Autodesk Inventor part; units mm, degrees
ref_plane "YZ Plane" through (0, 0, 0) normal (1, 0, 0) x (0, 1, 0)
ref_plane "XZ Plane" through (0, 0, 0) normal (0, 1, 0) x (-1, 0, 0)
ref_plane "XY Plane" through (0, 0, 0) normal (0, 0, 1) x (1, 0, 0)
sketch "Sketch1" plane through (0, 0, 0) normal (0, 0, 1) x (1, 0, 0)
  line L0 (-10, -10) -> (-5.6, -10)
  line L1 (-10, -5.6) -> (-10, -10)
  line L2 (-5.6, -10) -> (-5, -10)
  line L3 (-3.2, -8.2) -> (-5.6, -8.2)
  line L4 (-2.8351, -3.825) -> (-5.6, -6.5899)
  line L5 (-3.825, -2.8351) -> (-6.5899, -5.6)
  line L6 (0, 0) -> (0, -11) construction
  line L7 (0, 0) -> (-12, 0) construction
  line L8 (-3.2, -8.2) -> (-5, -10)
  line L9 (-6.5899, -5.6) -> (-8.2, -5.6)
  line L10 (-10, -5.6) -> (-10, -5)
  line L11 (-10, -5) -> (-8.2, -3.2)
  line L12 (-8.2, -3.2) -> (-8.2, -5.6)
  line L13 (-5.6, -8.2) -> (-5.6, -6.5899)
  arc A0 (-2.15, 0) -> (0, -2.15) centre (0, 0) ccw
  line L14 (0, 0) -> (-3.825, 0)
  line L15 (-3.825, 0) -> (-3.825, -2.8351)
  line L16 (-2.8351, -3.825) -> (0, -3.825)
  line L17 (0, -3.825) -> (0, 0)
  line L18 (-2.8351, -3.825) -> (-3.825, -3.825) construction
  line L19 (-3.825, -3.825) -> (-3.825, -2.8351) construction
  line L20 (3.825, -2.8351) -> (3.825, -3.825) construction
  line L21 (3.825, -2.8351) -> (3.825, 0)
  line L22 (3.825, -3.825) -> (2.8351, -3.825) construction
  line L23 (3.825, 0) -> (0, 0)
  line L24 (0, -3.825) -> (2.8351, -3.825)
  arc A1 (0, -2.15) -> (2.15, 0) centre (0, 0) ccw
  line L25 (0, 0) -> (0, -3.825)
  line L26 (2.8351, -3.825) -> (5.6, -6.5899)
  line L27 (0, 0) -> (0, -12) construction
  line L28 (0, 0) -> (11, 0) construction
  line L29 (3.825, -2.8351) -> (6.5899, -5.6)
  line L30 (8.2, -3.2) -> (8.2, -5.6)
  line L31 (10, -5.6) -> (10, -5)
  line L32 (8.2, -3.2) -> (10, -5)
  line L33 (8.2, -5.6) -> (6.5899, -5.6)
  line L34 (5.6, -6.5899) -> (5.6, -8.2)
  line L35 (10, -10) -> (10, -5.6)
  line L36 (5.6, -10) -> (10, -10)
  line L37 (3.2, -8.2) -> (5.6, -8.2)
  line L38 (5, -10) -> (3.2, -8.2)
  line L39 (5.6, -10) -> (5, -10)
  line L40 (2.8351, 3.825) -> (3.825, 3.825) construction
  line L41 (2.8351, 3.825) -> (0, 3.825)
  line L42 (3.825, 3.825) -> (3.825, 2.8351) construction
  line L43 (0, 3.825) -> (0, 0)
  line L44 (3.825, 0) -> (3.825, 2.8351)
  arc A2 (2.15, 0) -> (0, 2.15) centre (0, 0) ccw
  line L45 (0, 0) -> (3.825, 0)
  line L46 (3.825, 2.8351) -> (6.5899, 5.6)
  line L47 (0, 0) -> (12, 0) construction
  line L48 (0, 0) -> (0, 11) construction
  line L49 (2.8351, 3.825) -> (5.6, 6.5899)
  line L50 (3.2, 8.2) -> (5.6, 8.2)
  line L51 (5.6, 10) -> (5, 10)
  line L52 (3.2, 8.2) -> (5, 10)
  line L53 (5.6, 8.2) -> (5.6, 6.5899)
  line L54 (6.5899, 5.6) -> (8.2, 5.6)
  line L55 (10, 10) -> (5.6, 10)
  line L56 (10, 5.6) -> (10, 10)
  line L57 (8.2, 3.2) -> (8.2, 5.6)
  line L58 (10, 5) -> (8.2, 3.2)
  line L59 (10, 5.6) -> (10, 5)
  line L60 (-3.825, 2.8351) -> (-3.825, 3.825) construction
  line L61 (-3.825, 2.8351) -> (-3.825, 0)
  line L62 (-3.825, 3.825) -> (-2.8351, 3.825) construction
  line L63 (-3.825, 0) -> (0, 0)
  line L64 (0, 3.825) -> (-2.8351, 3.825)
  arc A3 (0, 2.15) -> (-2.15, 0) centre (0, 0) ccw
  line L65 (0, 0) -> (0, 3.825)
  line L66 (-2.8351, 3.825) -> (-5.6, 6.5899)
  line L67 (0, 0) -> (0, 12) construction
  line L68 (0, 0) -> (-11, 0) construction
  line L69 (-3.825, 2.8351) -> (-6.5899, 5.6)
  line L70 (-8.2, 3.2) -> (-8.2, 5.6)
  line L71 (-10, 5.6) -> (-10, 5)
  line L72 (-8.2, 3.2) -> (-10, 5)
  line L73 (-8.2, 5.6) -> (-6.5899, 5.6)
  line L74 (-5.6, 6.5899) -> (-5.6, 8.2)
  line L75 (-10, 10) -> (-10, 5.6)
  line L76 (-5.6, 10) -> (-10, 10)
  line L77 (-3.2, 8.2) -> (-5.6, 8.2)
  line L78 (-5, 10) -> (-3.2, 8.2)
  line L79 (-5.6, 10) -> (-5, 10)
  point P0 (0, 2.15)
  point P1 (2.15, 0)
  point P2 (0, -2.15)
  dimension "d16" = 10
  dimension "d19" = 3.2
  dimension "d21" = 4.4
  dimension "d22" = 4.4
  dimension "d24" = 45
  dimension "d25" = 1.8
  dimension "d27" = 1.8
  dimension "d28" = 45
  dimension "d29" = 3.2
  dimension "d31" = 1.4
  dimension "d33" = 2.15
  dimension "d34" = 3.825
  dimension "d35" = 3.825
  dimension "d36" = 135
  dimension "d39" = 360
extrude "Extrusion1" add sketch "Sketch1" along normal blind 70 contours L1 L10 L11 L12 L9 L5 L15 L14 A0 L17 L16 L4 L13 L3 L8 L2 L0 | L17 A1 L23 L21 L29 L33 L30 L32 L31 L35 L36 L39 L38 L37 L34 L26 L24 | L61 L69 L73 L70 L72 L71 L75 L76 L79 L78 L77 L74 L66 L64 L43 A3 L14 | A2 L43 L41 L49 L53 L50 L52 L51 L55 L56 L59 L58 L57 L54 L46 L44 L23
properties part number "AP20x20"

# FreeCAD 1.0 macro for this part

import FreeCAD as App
import Part
import Sketcher
Q = App.Units.Quantity


def add_polygon(sketch, points):
    """Adds a closed chain of lines whose ends are joined by coincident constraints."""
    first, n = sketch.GeometryCount, len(points)
    for a, b in zip(points, points[1:] + points[:1]):
        sketch.addGeometry(Part.LineSegment(App.Vector(*a, 0), App.Vector(*b, 0)), False)
    for i in range(n):
        sketch.addConstraint(Sketcher.Constraint("Coincident", first + i, 2, first + (i + 1) % n, 1))

doc = App.newDocument("Part")
params = doc.addObject("Spreadsheet::Sheet", "Params")
for row, (alias, value) in enumerate([
    ("sketch1_diameter", "4.3 mm"),
    ("sketch1_width", "1.61 mm"),
    ("pad1_length", "70 mm"),
], start=1):
    params.set(f"A{row}", alias)
    params.set(f"B{row}", "=" + value)
    params.setAlias(f"B{row}", alias)

body = doc.addObject("PartDesign::Body", "Body")

sketch1 = body.newObject("Sketcher::SketchObject", "Sketch")
sketch1.AttachmentSupport = (doc.getObject("XY_Plane"), [""])
sketch1.MapMode = "FlatFace"
add_polygon(sketch1, [(-10, -10), (-5, -10), (-3.2, -8.2), (-5.6, -8.2), (-5.6, -6.6), (-2.8, -3.8), (2.8, -3.8), (5.6, -6.6), (5.6, -8.2), (3.2, -8.2), (5, -10), (10, -10), (10, -5), (8.2, -3.2), (8.2, -5.6), (6.6, -5.6), (3.8, -2.8), (3.8, 2.8), (6.6, 5.6), (8.2, 5.6), (8.2, 3.2), (10, 5), (10, 10), (5, 10), (3.2, 8.2), (5.6, 8.2), (5.6, 6.6), (2.8, 3.8), (-2.8, 3.8), (-5.6, 6.6), (-5.6, 8.2), (-3.2, 8.2), (-5, 10), (-10, 10), (-10, 5), (-8.2, 3.2), (-8.2, 5.6), (-6.6, 5.6), (-3.8, 2.8), (-3.8, -2.8), (-6.6, -5.6), (-8.2, -5.6), (-8.2, -3.2), (-10, -5)])
sketch1.addGeometry(Part.Circle(App.Vector(0, 0, 0), App.Vector(0, 0, 1), 2.1), False)
sketch1.addConstraint(Sketcher.Constraint("Horizontal", 0))
sketch1.addConstraint(Sketcher.Constraint("Horizontal", 2))
sketch1.addConstraint(Sketcher.Constraint("Vertical", 3))
sketch1.addConstraint(Sketcher.Constraint("Horizontal", 5))
sketch1.addConstraint(Sketcher.Constraint("Vertical", 7))
sketch1.addConstraint(Sketcher.Constraint("Horizontal", 8))
sketch1.addConstraint(Sketcher.Constraint("Horizontal", 10))
sketch1.addConstraint(Sketcher.Constraint("Vertical", 11))
sketch1.addConstraint(Sketcher.Constraint("Vertical", 13))
sketch1.addConstraint(Sketcher.Constraint("Horizontal", 14))
sketch1.addConstraint(Sketcher.Constraint("Vertical", 16))
sketch1.addConstraint(Sketcher.Constraint("Horizontal", 18))
sketch1.addConstraint(Sketcher.Constraint("Vertical", 19))
sketch1.addConstraint(Sketcher.Constraint("Vertical", 21))
sketch1.addConstraint(Sketcher.Constraint("Horizontal", 22))
sketch1.addConstraint(Sketcher.Constraint("Horizontal", 24))
sketch1.addConstraint(Sketcher.Constraint("Vertical", 25))
sketch1.addConstraint(Sketcher.Constraint("Horizontal", 27))
sketch1.addConstraint(Sketcher.Constraint("Vertical", 29))
sketch1.addConstraint(Sketcher.Constraint("Horizontal", 30))
sketch1.addConstraint(Sketcher.Constraint("Horizontal", 32))
sketch1.addConstraint(Sketcher.Constraint("Vertical", 33))
sketch1.addConstraint(Sketcher.Constraint("Vertical", 35))
sketch1.addConstraint(Sketcher.Constraint("Horizontal", 36))
sketch1.addConstraint(Sketcher.Constraint("Vertical", 38))
sketch1.addConstraint(Sketcher.Constraint("Horizontal", 40))
sketch1.addConstraint(Sketcher.Constraint("Vertical", 41))
sketch1.addConstraint(Sketcher.Constraint("Vertical", 43))
sketch1.addConstraint(Sketcher.Constraint("Coincident", 44, 3, -1, 1))
sketch1.addConstraint(Sketcher.Constraint("Symmetric", 0, 2, 22, 2, -1, 1))
sketch1.addConstraint(Sketcher.Constraint("Symmetric", 1, 2, 23, 2, -1, 1))
sketch1.addConstraint(Sketcher.Constraint("Symmetric", 3, 2, 25, 2, -1, 1))
sketch1.addConstraint(Sketcher.Constraint("Symmetric", 4, 2, 26, 2, -1, 1))
sketch1.addConstraint(Sketcher.Constraint("Symmetric", 6, 2, 28, 2, -1, 1))
sketch1.addConstraint(Sketcher.Constraint("Symmetric", 8, 2, 30, 2, -1, 1))
sketch1.addConstraint(Sketcher.Constraint("Symmetric", 9, 2, 31, 2, -1, 1))
sketch1.addConstraint(Sketcher.Constraint("Symmetric", 11, 2, 33, 2, -1, 1))
sketch1.addConstraint(Sketcher.Constraint("Symmetric", 12, 2, 34, 2, -1, 1))
sketch1.addConstraint(Sketcher.Constraint("Symmetric", 14, 2, 36, 2, -1, 1))
sketch1.addConstraint(Sketcher.Constraint("Symmetric", 15, 2, 37, 2, -1, 1))
sketch1.addConstraint(Sketcher.Constraint("Symmetric", 17, 2, 39, 2, -1, 1))
sketch1.addConstraint(Sketcher.Constraint("Symmetric", 19, 2, 41, 2, -1, 1))
sketch1.addConstraint(Sketcher.Constraint("Symmetric", 20, 2, 42, 2, -1, 1))
sketch1.addConstraint(Sketcher.Constraint("Symmetric", 3, 2, 6, 2, -2))
sketch1.addConstraint(Sketcher.Constraint("Symmetric", 1, 2, 8, 2, -2))
sketch1.addConstraint(Sketcher.Constraint("Symmetric", 0, 2, 9, 2, -2))
sketch1.addConstraint(Sketcher.Constraint("Symmetric", 20, 2, 33, 2, -2))
sketch1.addConstraint(Sketcher.Constraint("Symmetric", 19, 2, 34, 2, -2))
sketch1.addConstraint(Sketcher.Constraint("Symmetric", 17, 2, 36, 2, -2))
sketch1.addConstraint(Sketcher.Constraint("Parallel", 1, 4))
sketch1.addConstraint(Sketcher.Constraint("Perpendicular", 4, 6))
sketch1.addConstraint(Sketcher.Constraint("Parallel", 6, 9))
sketch1.addConstraint(Sketcher.Constraint("Parallel", 9, 12))
sketch1.addConstraint(Sketcher.Constraint("Parallel", 12, 15))
sketch1.addConstraint(Sketcher.Constraint("Perpendicular", 15, 17))
sketch1.addConstraint(Sketcher.Constraint("Perpendicular", 26, 28))
sketch1.addConstraint(Sketcher.Constraint("Perpendicular", 37, 39))
sketch1.addConstraint(Sketcher.Constraint("Equal", 40, 3))
sketch1.addConstraint(Sketcher.Constraint("Equal", 32, 11))
sketch1.addConstraint(Sketcher.Constraint("Equal", 30, 13))
sketch1.addConstraint(Sketcher.Constraint("Equal", 27, 16))
sketch1.addConstraint(Sketcher.Constraint("Equal", 9, 12))
sketch1.addConstraint(Sketcher.Constraint("Equal", 6, 15))
sketch1.addConstraint(Sketcher.Constraint("Diameter", 44, Q("4.3 mm")))
sketch1.addConstraint(Sketcher.Constraint("DistanceY", 0, 2, -1, 1, Q("10 mm")))
sketch1.addConstraint(Sketcher.Constraint("DistanceX", 1, 2, -1, 1, Q("3.2 mm")))
sketch1.addConstraint(Sketcher.Constraint("DistanceX", 0, 2, 1, 2, Q("1.8 mm")))
sketch1.addConstraint(Sketcher.Constraint("DistanceX", 7, 2, 10, 2, Q("4.4 mm")))
sketch1.addConstraint(Sketcher.Constraint("DistanceY", 4, 2, -1, 1, Q("3.825 mm")))
sketch1.addConstraint(Sketcher.Constraint("DistanceX", 14, 2, 14, 1, Q("1.61 mm")))
sketch1.setExpression("Constraints[107]", "Params.sketch1_diameter")
sketch1.setExpression("Constraints[113]", "Params.sketch1_width")
pad1 = body.newObject("PartDesign::Pad", "Pad")
pad1.Profile = sketch1
pad1.setExpression("Length", "Params.pad1_length")

doc.recompute()
